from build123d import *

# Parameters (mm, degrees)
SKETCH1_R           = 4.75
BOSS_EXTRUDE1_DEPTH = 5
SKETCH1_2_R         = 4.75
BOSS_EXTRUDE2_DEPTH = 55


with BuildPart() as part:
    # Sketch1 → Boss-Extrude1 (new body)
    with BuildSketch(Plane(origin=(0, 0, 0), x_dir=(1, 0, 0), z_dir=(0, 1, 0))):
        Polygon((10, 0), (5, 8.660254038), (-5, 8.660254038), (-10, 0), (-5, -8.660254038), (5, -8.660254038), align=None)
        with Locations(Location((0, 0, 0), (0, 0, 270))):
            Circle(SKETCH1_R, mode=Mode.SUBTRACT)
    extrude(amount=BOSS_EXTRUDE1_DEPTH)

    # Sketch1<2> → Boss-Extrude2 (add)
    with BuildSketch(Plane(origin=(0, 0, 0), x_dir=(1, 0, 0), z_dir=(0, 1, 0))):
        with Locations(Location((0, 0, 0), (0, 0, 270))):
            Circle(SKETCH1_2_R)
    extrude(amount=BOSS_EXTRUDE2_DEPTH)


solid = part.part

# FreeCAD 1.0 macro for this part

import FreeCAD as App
import Part
import Sketcher
Q = App.Units.Quantity


def add_polygon(sketch, points):
    """Adds a closed chain of lines whose ends are joined by coincident constraints."""
    first, n = sketch.GeometryCount, len(points)
    for a, b in zip(points, points[1:] + points[:1]):
        sketch.addGeometry(Part.LineSegment(App.Vector(*a, 0), App.Vector(*b, 0)), False)
    for i in range(n):
        sketch.addConstraint(Sketcher.Constraint("Coincident", first + i, 2, first + (i + 1) % n, 1))

doc = App.newDocument("Part")
body = doc.addObject("PartDesign::Body", "Body")

sketch1 = body.newObject("Sketcher::SketchObject", "Sketch")
sketch1.AttachmentSupport = (doc.getObject("XZ_Plane"), [""])
sketch1.MapMode = "FlatFace"
add_polygon(sketch1, [(10, 0), (5, -8.7), (-5, -8.7), (-10, 0), (-5, 8.7), (5, 8.7)])
sketch1.addGeometry(Part.Circle(App.Vector(0, 0, 0), App.Vector(0, 0, 1), 4.8), False)
sketch1.addConstraint([
    Sketcher.Constraint("Horizontal", 1),
    Sketcher.Constraint("Horizontal", 4),
    Sketcher.Constraint("Coincident", 6, 3, -1, 1),
    Sketcher.Constraint("Symmetric", 0, 2, 3, 2, -1, 1),
    Sketcher.Constraint("Symmetric", 2, 2, 5, 2, -1, 1),
    Sketcher.Constraint("PointOnObject", 2, 2, -1),
    Sketcher.Constraint("Parallel", 2, 5),
    Sketcher.Constraint("Vertical", 1, 2, 3, 2),
    Sketcher.Constraint("Diameter", 6, 9.5),
    Sketcher.Constraint("DistanceX", 1, 2, 1, 1, 10.0),
    Sketcher.Constraint("Angle", 0, Q("-120 deg")),
    Sketcher.Constraint("Distance", 0, 10.0),
])
pad1 = body.newObject("PartDesign::Pad", "Pad")
pad1.Profile = sketch1
pad1.Length = 5
pad1.Reversed = True

sketch2 = body.newObject("Sketcher::SketchObject", "Sketch001")
sketch2.AttachmentSupport = (doc.getObject("XZ_Plane"), [""])
sketch2.MapMode = "FlatFace"
sketch2.addGeometry(Part.Circle(App.Vector(0, 0, 0), App.Vector(0, 0, 1), 4.8), False)
sketch2.addConstraint([
    Sketcher.Constraint("Coincident", 0, 3, -1, 1),
    Sketcher.Constraint("Diameter", 0, 9.5),
])
pad2 = body.newObject("PartDesign::Pad", "Pad001")
pad2.Profile = sketch2
pad2.Length = 55
pad2.Reversed = True

doc.recompute()
